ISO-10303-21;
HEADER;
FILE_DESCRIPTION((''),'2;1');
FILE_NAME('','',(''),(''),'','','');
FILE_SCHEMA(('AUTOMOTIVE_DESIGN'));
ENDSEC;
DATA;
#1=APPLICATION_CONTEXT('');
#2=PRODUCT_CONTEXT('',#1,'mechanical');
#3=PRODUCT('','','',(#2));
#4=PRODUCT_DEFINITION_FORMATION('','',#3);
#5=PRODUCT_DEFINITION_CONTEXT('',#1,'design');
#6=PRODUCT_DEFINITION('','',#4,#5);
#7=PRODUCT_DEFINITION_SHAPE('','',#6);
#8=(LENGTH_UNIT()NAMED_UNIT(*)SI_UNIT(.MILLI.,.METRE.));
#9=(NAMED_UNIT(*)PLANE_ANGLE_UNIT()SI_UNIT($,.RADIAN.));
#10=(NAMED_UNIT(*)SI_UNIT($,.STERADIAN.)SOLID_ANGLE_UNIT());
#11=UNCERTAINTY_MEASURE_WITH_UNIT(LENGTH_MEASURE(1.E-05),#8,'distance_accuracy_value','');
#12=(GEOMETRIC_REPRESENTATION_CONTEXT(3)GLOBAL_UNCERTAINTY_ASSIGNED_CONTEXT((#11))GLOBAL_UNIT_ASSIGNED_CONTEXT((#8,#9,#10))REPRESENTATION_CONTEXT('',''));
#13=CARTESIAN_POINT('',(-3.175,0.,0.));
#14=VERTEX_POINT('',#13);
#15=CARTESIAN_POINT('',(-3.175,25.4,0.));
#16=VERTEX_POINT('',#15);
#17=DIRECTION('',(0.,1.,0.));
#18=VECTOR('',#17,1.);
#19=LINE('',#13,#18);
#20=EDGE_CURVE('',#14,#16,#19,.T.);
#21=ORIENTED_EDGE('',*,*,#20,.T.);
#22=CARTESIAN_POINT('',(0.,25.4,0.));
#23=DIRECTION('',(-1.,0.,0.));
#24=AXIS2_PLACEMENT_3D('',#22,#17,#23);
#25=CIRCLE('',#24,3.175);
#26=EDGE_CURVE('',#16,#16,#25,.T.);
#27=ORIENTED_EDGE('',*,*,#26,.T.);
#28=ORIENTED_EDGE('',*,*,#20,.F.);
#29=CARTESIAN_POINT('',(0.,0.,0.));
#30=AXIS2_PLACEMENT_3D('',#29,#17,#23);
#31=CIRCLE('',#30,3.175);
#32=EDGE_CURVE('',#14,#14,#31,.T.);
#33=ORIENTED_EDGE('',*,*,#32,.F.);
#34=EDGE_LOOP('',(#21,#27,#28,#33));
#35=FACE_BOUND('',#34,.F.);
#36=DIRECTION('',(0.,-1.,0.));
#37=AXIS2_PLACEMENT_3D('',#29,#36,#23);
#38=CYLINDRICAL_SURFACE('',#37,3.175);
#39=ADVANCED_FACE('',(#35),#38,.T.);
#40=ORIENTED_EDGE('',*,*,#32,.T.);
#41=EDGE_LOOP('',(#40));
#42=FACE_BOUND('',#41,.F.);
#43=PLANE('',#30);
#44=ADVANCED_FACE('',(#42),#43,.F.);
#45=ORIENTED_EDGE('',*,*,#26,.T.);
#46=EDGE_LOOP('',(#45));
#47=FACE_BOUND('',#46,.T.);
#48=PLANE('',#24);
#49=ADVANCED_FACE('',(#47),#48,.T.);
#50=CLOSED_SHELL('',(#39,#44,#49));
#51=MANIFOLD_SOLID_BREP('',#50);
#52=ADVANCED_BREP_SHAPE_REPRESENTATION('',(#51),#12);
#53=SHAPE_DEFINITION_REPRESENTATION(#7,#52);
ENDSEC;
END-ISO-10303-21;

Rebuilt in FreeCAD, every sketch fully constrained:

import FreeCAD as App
import Part
import Sketcher

V = App.Vector
Q = App.Units.Quantity

doc = App.newDocument("Part")
params = doc.addObject("Spreadsheet::Sheet", "Params")
for row, (alias, value) in enumerate([
    ("sketch1_diameter", "0.25 in"),
    ("pad1_length", "1 in"),
], start=1):
    params.set(f"A{row}", alias)
    params.set(f"B{row}", "=" + value)
    params.setAlias(f"B{row}", alias)

body = doc.addObject("PartDesign::Body", "Body")

sketch1 = body.newObject("Sketcher::SketchObject", "Sketch")
sketch1.AttachmentSupport = (doc.getObject("XZ_Plane"), [""])
sketch1.MapMode = "FlatFace"
sketch1.addGeometry(Part.Circle(V(0, 0, 0), V(0, 0, 1), 3.2), False)
sketch1.addConstraint(Sketcher.Constraint("Coincident", 0, 3, -1, 1))
sketch1.addConstraint(Sketcher.Constraint("Diameter", 0, Q("0.25 in")))
sketch1.setExpression("Constraints[1]", "Params.sketch1_diameter")
pad1 = body.newObject("PartDesign::Pad", "Pad")
pad1.Profile = sketch1
pad1.setExpression("Length", "Params.pad1_length")
pad1.Reversed = True

doc.recompute()
